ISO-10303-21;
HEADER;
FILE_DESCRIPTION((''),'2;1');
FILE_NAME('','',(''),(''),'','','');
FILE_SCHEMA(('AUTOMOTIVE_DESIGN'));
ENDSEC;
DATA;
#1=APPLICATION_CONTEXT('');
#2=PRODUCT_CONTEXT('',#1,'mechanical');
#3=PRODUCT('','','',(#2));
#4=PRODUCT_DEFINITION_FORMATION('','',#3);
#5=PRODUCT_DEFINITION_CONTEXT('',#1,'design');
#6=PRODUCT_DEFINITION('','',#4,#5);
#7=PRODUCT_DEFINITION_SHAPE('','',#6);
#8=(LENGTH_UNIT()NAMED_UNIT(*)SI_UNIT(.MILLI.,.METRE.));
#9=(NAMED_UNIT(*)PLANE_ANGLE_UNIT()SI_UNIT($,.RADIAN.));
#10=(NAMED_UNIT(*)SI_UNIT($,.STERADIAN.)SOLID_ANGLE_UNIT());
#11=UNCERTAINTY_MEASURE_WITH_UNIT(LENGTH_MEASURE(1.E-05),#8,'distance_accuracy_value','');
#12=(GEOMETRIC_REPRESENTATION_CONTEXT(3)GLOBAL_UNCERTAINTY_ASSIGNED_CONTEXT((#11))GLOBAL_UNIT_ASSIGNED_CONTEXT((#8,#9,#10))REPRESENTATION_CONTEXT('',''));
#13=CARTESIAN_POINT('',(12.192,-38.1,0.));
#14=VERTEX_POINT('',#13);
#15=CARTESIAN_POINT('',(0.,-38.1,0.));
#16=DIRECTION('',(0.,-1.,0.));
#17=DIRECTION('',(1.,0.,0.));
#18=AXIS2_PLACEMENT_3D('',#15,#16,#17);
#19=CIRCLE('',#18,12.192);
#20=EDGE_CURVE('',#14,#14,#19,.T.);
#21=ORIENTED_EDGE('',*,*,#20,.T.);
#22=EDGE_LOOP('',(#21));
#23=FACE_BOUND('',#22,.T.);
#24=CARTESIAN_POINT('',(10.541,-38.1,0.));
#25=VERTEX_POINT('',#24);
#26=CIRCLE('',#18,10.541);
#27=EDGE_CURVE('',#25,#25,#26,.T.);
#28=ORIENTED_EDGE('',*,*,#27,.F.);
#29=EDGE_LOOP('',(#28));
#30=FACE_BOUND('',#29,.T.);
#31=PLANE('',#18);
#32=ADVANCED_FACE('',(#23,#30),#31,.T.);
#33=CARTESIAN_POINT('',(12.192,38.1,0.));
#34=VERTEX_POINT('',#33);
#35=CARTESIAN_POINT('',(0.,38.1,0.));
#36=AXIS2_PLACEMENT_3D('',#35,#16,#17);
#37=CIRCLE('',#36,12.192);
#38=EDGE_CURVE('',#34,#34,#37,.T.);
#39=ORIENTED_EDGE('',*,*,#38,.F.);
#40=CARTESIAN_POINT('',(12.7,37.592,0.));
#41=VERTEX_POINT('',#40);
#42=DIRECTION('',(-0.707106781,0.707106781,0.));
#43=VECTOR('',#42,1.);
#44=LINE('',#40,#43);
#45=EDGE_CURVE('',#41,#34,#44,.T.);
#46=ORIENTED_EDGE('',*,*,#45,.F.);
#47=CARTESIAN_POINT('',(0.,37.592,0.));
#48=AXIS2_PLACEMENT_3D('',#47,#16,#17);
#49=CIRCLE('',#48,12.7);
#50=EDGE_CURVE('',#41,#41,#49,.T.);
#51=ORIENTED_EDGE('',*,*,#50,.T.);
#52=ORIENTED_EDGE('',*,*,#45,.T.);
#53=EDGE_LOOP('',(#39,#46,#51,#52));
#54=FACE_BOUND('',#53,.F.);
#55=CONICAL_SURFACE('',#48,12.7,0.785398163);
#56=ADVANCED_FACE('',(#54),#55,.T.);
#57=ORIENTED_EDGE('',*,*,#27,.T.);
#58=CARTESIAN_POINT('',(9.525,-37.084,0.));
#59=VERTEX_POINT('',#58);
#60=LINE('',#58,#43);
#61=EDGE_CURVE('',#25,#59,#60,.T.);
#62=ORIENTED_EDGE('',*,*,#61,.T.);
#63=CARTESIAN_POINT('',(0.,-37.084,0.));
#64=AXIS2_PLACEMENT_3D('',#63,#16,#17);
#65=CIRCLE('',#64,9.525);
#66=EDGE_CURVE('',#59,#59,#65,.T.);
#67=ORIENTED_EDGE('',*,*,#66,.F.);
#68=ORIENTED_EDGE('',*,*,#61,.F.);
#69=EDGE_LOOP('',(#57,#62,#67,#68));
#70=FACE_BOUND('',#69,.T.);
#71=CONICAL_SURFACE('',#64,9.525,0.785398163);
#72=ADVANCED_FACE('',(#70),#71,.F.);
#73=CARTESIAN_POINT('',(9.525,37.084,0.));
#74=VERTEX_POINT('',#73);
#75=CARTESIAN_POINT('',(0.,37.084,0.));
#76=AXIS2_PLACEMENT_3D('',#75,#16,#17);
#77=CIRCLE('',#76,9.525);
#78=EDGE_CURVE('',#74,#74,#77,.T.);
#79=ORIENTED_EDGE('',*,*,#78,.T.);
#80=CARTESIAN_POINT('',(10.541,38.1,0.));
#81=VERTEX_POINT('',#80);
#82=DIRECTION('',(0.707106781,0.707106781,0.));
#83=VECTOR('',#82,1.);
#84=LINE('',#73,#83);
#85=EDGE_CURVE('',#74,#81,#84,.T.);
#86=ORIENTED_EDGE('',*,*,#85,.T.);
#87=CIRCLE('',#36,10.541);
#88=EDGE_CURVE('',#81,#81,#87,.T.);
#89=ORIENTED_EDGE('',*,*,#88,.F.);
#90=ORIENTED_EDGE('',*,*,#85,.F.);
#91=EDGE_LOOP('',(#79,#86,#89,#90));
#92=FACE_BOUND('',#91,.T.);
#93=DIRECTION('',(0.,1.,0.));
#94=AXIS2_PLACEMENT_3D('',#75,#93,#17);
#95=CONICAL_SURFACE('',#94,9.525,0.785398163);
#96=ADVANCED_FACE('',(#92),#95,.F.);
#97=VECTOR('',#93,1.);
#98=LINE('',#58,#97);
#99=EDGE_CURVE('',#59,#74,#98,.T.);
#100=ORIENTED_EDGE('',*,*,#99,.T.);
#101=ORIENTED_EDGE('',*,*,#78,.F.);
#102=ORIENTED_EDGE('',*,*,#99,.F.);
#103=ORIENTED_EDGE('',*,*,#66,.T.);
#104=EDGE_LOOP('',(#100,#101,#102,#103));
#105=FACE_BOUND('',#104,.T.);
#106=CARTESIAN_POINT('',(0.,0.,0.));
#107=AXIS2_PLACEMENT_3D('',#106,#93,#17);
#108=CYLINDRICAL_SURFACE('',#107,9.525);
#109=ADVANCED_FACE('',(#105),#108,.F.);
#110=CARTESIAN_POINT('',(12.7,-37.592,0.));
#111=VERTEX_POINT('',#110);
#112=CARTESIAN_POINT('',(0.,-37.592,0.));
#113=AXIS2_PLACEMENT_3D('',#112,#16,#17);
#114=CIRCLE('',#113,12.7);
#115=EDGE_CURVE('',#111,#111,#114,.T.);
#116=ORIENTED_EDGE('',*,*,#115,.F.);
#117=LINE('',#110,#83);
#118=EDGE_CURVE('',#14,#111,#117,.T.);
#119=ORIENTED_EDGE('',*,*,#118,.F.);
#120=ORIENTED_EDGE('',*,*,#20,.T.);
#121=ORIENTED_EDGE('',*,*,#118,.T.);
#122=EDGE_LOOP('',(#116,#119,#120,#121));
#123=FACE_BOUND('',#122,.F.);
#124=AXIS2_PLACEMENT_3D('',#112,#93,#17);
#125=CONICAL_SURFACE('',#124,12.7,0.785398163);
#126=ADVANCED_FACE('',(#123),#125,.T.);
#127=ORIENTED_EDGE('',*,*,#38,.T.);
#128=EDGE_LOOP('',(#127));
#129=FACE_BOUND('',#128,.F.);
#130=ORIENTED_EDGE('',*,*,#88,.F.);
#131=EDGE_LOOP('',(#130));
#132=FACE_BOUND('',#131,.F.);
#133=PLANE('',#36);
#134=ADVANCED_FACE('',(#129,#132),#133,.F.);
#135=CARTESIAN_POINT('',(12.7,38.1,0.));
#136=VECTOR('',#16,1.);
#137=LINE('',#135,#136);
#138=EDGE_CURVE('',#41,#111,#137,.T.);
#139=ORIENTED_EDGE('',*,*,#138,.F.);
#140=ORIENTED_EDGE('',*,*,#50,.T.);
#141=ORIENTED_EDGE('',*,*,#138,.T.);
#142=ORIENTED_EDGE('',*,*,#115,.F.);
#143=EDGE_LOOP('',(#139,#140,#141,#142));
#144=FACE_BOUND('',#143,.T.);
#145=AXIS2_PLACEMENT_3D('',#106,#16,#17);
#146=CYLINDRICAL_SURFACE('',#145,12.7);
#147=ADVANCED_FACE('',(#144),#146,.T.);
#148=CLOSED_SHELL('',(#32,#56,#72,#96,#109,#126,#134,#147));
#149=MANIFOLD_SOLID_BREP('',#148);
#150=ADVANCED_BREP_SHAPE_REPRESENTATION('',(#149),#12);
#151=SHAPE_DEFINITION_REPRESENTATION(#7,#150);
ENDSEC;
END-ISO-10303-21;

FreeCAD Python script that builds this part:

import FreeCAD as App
import Part
import Sketcher

V = App.Vector
Q = App.Units.Quantity


def edges_at(feature, points):
    """Names of the edges that pass closest to the given points."""
    edges = feature.Shape.Edges
    near = lambda p: min(range(len(edges)), key=lambda i: edges[i].distToShape(Part.Vertex(*p))[0])
    return sorted({f"Edge{near(p) + 1}" for p in points})

doc = App.newDocument("Part")
body = doc.addObject("PartDesign::Body", "Body")

sketch1 = doc.addObject("Sketcher::SketchObject", "Sketch")
body.addObject(sketch1)
sketch1.AttachmentSupport = (doc.XZ_Plane, [""])
sketch1.MapMode = "FlatFace"
sketch1.addGeometry([
    Part.Circle(V(0, 0, 0), V(0, 0, 1), 13),
    Part.Circle(V(0, 0, 0), V(0, 0, 1), 10),
], False)
sketch1.addConstraint([
    Sketcher.Constraint("Coincident", 0, 3, -1, 1),
    Sketcher.Constraint("Coincident", 1, 3, -1, 1),
    Sketcher.Constraint("Diameter", 0, Q("1 in")),
    Sketcher.Constraint("Diameter", 1, Q("0.75 in")),
])
pad1 = doc.addObject("PartDesign::Pad", "Pad")
body.addObject(pad1)
pad1.Profile = sketch1
pad1.Type = "TwoLengths"
pad1.Length = Q("1.5 in")
pad1.Length2 = Q("1.5 in")
doc.recompute()

chamfer = doc.addObject("PartDesign::Chamfer", "Chamfer")
body.addObject(chamfer)
chamfer.Base = (pad1, edges_at(pad1, [(-9.525, -38.1, 0), (-9.525, 38.1, 0)]))
chamfer.Size = Q("0.04 in")
doc.recompute()

chamfer2 = doc.addObject("PartDesign::Chamfer", "Chamfer001")
body.addObject(chamfer2)
chamfer2.Base = (chamfer, edges_at(chamfer, [(-12.7, 38.1, 0), (-12.7, -38.1, 0)]))
chamfer2.Size = Q("0.02 in")

doc.recompute()
